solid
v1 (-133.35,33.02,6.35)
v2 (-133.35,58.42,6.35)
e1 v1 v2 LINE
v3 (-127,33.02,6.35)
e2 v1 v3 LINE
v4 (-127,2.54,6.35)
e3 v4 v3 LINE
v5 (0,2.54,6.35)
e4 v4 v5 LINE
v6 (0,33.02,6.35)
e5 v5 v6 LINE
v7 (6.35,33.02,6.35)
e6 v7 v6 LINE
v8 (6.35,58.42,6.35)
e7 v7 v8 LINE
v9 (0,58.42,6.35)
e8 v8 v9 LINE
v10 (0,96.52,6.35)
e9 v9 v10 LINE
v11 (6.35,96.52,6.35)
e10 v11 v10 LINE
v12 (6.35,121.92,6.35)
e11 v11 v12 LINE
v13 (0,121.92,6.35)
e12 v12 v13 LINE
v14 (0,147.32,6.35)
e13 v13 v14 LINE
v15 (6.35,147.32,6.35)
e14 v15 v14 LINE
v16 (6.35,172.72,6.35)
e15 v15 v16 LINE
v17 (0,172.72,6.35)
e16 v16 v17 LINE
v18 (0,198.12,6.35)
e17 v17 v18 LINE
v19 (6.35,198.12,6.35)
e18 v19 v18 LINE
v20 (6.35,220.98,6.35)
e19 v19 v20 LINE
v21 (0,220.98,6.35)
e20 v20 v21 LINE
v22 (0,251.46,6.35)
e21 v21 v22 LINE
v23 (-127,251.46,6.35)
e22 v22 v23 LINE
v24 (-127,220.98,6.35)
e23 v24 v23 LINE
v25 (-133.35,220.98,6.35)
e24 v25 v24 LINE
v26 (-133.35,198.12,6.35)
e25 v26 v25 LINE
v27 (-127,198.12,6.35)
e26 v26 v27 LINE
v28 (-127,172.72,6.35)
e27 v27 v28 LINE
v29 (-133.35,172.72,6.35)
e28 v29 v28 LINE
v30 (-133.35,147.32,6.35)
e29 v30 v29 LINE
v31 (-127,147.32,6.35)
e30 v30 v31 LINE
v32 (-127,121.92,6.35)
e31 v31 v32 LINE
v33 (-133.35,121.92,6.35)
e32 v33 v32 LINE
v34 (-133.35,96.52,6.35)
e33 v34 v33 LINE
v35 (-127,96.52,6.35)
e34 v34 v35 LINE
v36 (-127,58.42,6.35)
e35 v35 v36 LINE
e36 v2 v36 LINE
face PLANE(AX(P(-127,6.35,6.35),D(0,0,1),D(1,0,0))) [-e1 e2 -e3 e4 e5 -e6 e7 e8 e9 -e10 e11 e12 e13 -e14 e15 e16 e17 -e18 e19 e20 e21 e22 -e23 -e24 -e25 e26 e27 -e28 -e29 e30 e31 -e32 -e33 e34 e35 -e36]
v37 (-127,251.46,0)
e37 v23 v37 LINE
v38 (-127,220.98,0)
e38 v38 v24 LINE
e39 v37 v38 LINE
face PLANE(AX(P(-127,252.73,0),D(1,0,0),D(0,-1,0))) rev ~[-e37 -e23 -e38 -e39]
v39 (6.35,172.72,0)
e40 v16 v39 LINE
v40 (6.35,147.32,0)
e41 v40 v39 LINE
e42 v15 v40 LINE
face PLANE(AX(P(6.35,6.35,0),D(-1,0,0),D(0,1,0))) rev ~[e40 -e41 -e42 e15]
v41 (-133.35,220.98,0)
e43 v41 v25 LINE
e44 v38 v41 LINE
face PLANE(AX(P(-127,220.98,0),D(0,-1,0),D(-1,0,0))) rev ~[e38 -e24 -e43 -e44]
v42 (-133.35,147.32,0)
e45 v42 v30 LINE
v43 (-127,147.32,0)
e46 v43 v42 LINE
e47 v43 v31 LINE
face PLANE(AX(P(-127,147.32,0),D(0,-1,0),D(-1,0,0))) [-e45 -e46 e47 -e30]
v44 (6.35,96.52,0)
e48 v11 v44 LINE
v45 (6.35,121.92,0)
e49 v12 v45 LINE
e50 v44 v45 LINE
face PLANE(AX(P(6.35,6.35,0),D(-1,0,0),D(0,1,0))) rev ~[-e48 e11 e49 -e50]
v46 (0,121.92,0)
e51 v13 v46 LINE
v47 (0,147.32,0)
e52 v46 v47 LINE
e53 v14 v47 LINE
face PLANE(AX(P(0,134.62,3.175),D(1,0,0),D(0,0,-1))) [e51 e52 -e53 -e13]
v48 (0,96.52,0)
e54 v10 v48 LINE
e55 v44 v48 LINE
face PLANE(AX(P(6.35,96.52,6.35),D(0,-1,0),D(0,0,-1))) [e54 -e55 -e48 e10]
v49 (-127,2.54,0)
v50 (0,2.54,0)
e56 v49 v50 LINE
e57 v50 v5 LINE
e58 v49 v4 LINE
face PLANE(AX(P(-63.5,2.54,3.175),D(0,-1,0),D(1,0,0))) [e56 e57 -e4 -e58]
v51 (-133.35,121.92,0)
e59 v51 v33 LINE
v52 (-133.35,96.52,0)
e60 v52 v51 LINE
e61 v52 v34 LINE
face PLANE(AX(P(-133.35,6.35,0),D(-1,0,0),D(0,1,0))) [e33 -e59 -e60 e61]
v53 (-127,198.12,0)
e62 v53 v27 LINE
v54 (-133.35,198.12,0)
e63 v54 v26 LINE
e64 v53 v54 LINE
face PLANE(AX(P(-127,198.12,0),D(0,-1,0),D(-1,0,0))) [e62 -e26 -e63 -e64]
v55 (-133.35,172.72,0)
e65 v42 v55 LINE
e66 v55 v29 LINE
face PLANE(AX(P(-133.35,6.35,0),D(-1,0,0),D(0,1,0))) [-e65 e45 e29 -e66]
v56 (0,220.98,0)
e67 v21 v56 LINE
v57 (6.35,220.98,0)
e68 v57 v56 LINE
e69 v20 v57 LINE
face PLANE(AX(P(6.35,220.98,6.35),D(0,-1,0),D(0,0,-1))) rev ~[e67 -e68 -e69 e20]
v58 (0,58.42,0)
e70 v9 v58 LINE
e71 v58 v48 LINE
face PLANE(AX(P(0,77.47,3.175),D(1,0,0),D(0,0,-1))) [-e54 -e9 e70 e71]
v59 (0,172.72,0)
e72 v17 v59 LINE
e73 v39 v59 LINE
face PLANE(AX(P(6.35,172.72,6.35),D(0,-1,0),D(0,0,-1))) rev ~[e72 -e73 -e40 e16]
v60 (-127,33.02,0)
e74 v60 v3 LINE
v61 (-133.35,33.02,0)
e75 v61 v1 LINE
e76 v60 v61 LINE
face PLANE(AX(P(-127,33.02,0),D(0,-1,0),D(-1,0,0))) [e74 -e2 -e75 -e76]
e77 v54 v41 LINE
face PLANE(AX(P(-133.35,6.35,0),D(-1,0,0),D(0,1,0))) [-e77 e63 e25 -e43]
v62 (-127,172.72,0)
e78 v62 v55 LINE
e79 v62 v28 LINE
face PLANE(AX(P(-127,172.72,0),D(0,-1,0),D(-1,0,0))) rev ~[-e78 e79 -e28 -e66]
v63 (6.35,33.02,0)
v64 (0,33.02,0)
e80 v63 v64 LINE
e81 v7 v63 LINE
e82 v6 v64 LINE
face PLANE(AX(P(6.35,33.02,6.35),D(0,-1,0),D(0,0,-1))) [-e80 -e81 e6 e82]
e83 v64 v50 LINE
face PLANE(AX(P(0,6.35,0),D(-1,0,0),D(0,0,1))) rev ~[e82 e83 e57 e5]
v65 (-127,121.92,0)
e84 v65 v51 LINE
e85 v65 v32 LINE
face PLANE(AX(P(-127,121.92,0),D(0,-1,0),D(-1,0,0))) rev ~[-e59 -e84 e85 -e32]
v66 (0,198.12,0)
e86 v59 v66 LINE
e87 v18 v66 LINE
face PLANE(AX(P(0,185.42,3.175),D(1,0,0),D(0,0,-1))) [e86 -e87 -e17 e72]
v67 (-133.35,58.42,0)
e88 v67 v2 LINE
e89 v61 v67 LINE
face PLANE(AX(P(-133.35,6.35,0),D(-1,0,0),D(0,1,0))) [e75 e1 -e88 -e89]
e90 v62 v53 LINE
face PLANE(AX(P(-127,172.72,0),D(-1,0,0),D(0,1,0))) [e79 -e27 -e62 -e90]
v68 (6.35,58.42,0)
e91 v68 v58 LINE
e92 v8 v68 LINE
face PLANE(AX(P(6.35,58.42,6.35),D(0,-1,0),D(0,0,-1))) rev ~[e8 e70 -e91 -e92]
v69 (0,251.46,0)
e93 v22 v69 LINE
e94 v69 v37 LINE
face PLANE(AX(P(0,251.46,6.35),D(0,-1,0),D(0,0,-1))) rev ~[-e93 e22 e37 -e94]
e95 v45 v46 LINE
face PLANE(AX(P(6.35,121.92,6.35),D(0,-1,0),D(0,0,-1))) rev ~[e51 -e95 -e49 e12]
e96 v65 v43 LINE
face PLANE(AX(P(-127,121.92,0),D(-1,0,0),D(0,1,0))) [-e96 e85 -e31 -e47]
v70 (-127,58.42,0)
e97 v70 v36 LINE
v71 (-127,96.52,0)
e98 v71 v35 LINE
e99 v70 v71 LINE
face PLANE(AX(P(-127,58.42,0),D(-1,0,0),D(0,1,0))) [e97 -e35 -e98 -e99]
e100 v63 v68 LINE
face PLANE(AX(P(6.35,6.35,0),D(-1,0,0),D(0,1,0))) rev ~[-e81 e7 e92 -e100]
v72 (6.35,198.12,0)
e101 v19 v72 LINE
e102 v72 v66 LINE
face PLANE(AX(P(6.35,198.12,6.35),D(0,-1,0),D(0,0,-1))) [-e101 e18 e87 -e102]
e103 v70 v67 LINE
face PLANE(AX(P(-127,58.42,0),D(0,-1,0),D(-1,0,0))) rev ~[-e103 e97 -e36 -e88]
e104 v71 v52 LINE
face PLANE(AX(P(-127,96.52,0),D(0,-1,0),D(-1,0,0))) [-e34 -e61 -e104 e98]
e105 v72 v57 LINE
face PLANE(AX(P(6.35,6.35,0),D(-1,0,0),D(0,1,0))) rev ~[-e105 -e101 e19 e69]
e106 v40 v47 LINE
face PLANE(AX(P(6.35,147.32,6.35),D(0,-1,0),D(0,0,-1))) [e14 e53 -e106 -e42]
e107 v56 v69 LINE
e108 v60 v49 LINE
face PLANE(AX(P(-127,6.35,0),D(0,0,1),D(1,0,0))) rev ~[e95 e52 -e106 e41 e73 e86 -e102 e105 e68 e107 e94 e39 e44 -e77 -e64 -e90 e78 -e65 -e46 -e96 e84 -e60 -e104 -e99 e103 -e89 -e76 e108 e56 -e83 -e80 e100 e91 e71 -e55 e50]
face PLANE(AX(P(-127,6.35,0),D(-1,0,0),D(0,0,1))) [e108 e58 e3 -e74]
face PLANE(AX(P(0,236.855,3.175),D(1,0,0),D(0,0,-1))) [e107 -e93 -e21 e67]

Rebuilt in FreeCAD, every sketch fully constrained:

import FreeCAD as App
import Part
import Sketcher
from FreeCAD import Vector
Q = App.Units.Quantity


def add_polygon(sketch, points):
    """Adds a closed chain of lines whose ends are joined by coincident constraints."""
    first, n = sketch.GeometryCount, len(points)
    for a, b in zip(points, points[1:] + points[:1]):
        sketch.addGeometry(Part.LineSegment(App.Vector(*a, 0), App.Vector(*b, 0)), False)
    for i in range(n):
        sketch.addConstraint(Sketcher.Constraint("Coincident", first + i, 2, first + (i + 1) % n, 1))

doc = App.newDocument("Part")
body = doc.addObject("PartDesign::Body", "Body")

# Sketch on XY plane
sketch1 = body.newObject("Sketcher::SketchObject", "Sketch")
sketch1.AttachmentSupport = (doc.getObject("XY_Plane"), [""])
sketch1.MapMode = "FlatFace"
add_polygon(sketch1, [(-133.35, 252.73), (-133.35, 6.35), (6.35, 6.35), (6.35, 252.73)])  # lines 0-3
sketch1.addConstraint([
    Sketcher.Constraint("Vertical", 0),
    Sketcher.Constraint("Horizontal", 1),
    Sketcher.Constraint("Vertical", 2),
    Sketcher.Constraint("Horizontal", 3),
    Sketcher.Constraint("DistanceX", 1, 1, 1, 2, Q("5.5 in")),
    Sketcher.Constraint("DistanceY", 0, 2, 0, 1, Q("9.7 in")),
    Sketcher.Constraint("DistanceX", 0, 2, -1, 1, Q("5.25 in")),
    Sketcher.Constraint("DistanceY", -1, 1, 0, 2, Q("0.25 in")),
])
pad1 = body.newObject("PartDesign::Pad", "Pad")
pad1.Profile = sketch1
pad1.Length = Q("0.25 in")

# Sketch on YZ plane
sketch2 = body.newObject("Sketcher::SketchObject", "Sketch001")
sketch2.AttachmentSupport = (doc.getObject("YZ_Plane"), [""])
sketch2.MapMode = "FlatFace"
sketch2.AttachmentOffset = App.Placement(Vector(0, 0, 0.25 * 25.4), App.Rotation())
add_polygon(sketch2, [(33.02, 6.35), (6.35, 6.35), (6.35, 0), (33.02, 0)])  # lines 0-3
add_polygon(sketch2, [(96.52, 6.35), (58.42, 6.35), (58.42, 0), (96.52, 0)])  # lines 4-7
add_polygon(sketch2, [(147.32, 6.35), (121.92, 6.35), (121.92, 0), (147.32, 0)])  # lines 8-11
add_polygon(sketch2, [(198.12, 6.35), (172.72, 6.35), (172.72, 0), (198.12, 0)])  # lines 12-15
add_polygon(sketch2, [(252.73, 6.35), (220.98, 6.35), (220.98, 0), (252.73, 0)])  # lines 16-19
sketch2.addConstraint([
    Sketcher.Constraint("Horizontal", 0),
    Sketcher.Constraint("Vertical", 1),
    Sketcher.Constraint("Horizontal", 2),
    Sketcher.Constraint("Vertical", 3),
    Sketcher.Constraint("Horizontal", 4),
    Sketcher.Constraint("Vertical", 5),
    Sketcher.Constraint("Horizontal", 6),
    Sketcher.Constraint("Vertical", 7),
    Sketcher.Constraint("Horizontal", 8),
    Sketcher.Constraint("Vertical", 9),
    Sketcher.Constraint("Horizontal", 10),
    Sketcher.Constraint("Vertical", 11),
    Sketcher.Constraint("Horizontal", 12),
    Sketcher.Constraint("Vertical", 13),
    Sketcher.Constraint("Horizontal", 14),
    Sketcher.Constraint("Vertical", 15),
    Sketcher.Constraint("Horizontal", 16),
    Sketcher.Constraint("Vertical", 17),
    Sketcher.Constraint("Horizontal", 18),
    Sketcher.Constraint("Vertical", 19),
    Sketcher.Constraint("PointOnObject", 1, 2, -1),
    Sketcher.Constraint("PointOnObject", 5, 2, -1),
    Sketcher.Constraint("PointOnObject", 9, 2, -1),
    Sketcher.Constraint("PointOnObject", 13, 2, -1),
    Sketcher.Constraint("PointOnObject", 17, 2, -1),
    Sketcher.Constraint("Horizontal", 3, 2, 4, 2),
    Sketcher.Constraint("Horizontal", 7, 2, 8, 2),
    Sketcher.Constraint("Horizontal", 11, 2, 12, 2),
    Sketcher.Constraint("Horizontal", 15, 2, 16, 2),
    Sketcher.Constraint("Equal", 10, 12),
    Sketcher.Constraint("DistanceX", 8, 2, 8, 1, Q("1 in")),
    Sketcher.Constraint("DistanceX", 4, 2, 4, 1, Q("1.5 in")),
    Sketcher.Constraint("DistanceX", 3, 2, 4, 2, Q("1 in")),
    Sketcher.Constraint("DistanceX", 7, 2, 8, 2, Q("1 in")),
    Sketcher.Constraint("DistanceX", 11, 2, 12, 2, Q("1 in")),
    Sketcher.Constraint("DistanceX", 0, 2, 0, 1, Q("1.05 in")),
    Sketcher.Constraint("DistanceX", 16, 2, 16, 1, Q("1.25 in")),
    Sketcher.Constraint("DistanceY", 1, 2, 1, 1, Q("0.25 in")),
    Sketcher.Constraint("DistanceX", -1, 1, 2, 2, Q("1.3 in")),
    Sketcher.Constraint("DistanceX", -1, 1, 16, 2, Q("8.7 in")),
])
pocket1 = body.newObject("PartDesign::Pocket", "Pocket")
pocket1.Profile = sketch2
pocket1.Length = Q("0.25 in")

# Sketch on XY plane
sketch3 = body.newObject("Sketcher::SketchObject", "Sketch002")
sketch3.AttachmentSupport = (doc.getObject("XY_Plane"), [""])
sketch3.MapMode = "FlatFace"
add_polygon(sketch3, [(-127, 33.02), (-127, 6.35), (-133.35, 6.35), (-133.35, 33.02)])  # lines 0-3
add_polygon(sketch3, [(-127, 96.52), (-127, 58.42), (-133.35, 58.42), (-133.35, 96.52)])  # lines 4-7
add_polygon(sketch3, [(-127, 147.32), (-127, 121.92), (-133.35, 121.92), (-133.35, 147.32)])  # lines 8-11
add_polygon(sketch3, [(-127, 198.12), (-127, 172.72), (-133.35, 172.72), (-133.35, 198.12)])  # lines 12-15
add_polygon(sketch3, [(-127, 220.98), (-133.35, 220.98), (-133.35, 252.73), (-127, 252.73)])  # lines 16-19
sketch3.addConstraint([
    Sketcher.Constraint("Vertical", 0),
    Sketcher.Constraint("Horizontal", 1),
    Sketcher.Constraint("Vertical", 2),
    Sketcher.Constraint("Horizontal", 3),
    Sketcher.Constraint("Vertical", 4),
    Sketcher.Constraint("Horizontal", 5),
    Sketcher.Constraint("Vertical", 6),
    Sketcher.Constraint("Horizontal", 7),
    Sketcher.Constraint("Vertical", 8),
    Sketcher.Constraint("Horizontal", 9),
    Sketcher.Constraint("Vertical", 10),
    Sketcher.Constraint("Horizontal", 11),
    Sketcher.Constraint("Vertical", 12),
    Sketcher.Constraint("Horizontal", 13),
    Sketcher.Constraint("Vertical", 14),
    Sketcher.Constraint("Horizontal", 15),
    Sketcher.Constraint("Horizontal", 16),
    Sketcher.Constraint("Vertical", 17),
    Sketcher.Constraint("Horizontal", 18),
    Sketcher.Constraint("Vertical", 19),
    Sketcher.Constraint("Vertical", 3, 2, 4, 2),
    Sketcher.Constraint("Vertical", 2, 2, 5, 2),
    Sketcher.Constraint("Vertical", 7, 2, 8, 2),
    Sketcher.Constraint("Vertical", 6, 2, 9, 2),
    Sketcher.Constraint("Vertical", 11, 2, 12, 2),
    Sketcher.Constraint("Vertical", 10, 2, 13, 2),
    Sketcher.Constraint("Vertical", 14, 2, 16, 2),
    Sketcher.Constraint("Vertical", 15, 2, 18, 2),
    Sketcher.Constraint("Equal", 10, 12),
    Sketcher.Constraint("DistanceY", 8, 2, 8, 1, Q("1 in")),
    Sketcher.Constraint("DistanceY", 4, 2, 4, 1, Q("1.5 in")),
    Sketcher.Constraint("DistanceX", 0, 2, -1, 1, Q("5 in")),
    Sketcher.Constraint("DistanceY", 3, 2, 4, 2, Q("1 in")),
    Sketcher.Constraint("DistanceY", 7, 2, 8, 2, Q("1 in")),
    Sketcher.Constraint("DistanceY", 11, 2, 12, 2, Q("1 in")),
    Sketcher.Constraint("DistanceX", 1, 2, 1, 1, Q("0.25 in")),
    Sketcher.Constraint("DistanceY", 0, 2, 0, 1, Q("1.05 in")),
    Sketcher.Constraint("DistanceY", 17, 1, 17, 2, Q("1.25 in")),
    Sketcher.Constraint("DistanceY", -1, 1, 2, 2, Q("1.3 in")),
    Sketcher.Constraint("DistanceY", -1, 1, 16, 2, Q("8.7 in")),
])
pocket2 = body.newObject("PartDesign::Pocket", "Pocket001")
pocket2.Profile = sketch3
pocket2.Type = "ThroughAll"
pocket2.Reversed = True

# Sketch on XZ plane
sketch4 = body.newObject("Sketcher::SketchObject", "Sketch003")
sketch4.AttachmentSupport = (doc.getObject("XZ_Plane"), [""])
sketch4.MapMode = "FlatFace"
sketch4.AttachmentOffset = App.Placement(Vector(0, 0, -0.25 * 25.4), App.Rotation())
add_polygon(sketch4, [(-127, 6.35), (-127, 0), (0, 0), (0, 6.35)])  # lines 0-3
sketch4.addConstraint([
    Sketcher.Constraint("Vertical", 0),
    Sketcher.Constraint("Horizontal", 1),
    Sketcher.Constraint("Vertical", 2),
    Sketcher.Constraint("Horizontal", 3),
    Sketcher.Constraint("Coincident", 1, 2, -1, 1),
    Sketcher.Constraint("DistanceX", 1, 1, 1, 2, Q("5 in")),
    Sketcher.Constraint("DistanceY", 0, 2, 0, 1, Q("0.25 in")),
])
pad2 = body.newObject("PartDesign::Pad", "Pad001")
pad2.Profile = sketch4
pad2.Length = Q("0.15 in")

# Sketch on YZ plane
sketch5 = body.newObject("Sketcher::SketchObject", "Sketch004")
sketch5.AttachmentSupport = (doc.getObject("YZ_Plane"), [""])
sketch5.MapMode = "FlatFace"
add_polygon(sketch5, [(252.73, 6.35), (251.46, 6.35), (251.46, 0), (252.73, 0)])  # lines 0-3
sketch5.addConstraint([
    Sketcher.Constraint("Horizontal", 0),
    Sketcher.Constraint("Vertical", 1),
    Sketcher.Constraint("Horizontal", 2),
    Sketcher.Constraint("Vertical", 3),
    Sketcher.Constraint("PointOnObject", 1, 2, -1),
    Sketcher.Constraint("DistanceX", 0, 2, 0, 1, Q("0.05 in")),
    Sketcher.Constraint("DistanceY", 1, 2, 1, 1, Q("0.25 in")),
    Sketcher.Constraint("DistanceX", -1, 1, 0, 2, Q("9.9 in")),
])
pocket3 = body.newObject("PartDesign::Pocket", "Pocket002")
pocket3.Profile = sketch5
pocket3.Type = "ThroughAll"

doc.recompute()
